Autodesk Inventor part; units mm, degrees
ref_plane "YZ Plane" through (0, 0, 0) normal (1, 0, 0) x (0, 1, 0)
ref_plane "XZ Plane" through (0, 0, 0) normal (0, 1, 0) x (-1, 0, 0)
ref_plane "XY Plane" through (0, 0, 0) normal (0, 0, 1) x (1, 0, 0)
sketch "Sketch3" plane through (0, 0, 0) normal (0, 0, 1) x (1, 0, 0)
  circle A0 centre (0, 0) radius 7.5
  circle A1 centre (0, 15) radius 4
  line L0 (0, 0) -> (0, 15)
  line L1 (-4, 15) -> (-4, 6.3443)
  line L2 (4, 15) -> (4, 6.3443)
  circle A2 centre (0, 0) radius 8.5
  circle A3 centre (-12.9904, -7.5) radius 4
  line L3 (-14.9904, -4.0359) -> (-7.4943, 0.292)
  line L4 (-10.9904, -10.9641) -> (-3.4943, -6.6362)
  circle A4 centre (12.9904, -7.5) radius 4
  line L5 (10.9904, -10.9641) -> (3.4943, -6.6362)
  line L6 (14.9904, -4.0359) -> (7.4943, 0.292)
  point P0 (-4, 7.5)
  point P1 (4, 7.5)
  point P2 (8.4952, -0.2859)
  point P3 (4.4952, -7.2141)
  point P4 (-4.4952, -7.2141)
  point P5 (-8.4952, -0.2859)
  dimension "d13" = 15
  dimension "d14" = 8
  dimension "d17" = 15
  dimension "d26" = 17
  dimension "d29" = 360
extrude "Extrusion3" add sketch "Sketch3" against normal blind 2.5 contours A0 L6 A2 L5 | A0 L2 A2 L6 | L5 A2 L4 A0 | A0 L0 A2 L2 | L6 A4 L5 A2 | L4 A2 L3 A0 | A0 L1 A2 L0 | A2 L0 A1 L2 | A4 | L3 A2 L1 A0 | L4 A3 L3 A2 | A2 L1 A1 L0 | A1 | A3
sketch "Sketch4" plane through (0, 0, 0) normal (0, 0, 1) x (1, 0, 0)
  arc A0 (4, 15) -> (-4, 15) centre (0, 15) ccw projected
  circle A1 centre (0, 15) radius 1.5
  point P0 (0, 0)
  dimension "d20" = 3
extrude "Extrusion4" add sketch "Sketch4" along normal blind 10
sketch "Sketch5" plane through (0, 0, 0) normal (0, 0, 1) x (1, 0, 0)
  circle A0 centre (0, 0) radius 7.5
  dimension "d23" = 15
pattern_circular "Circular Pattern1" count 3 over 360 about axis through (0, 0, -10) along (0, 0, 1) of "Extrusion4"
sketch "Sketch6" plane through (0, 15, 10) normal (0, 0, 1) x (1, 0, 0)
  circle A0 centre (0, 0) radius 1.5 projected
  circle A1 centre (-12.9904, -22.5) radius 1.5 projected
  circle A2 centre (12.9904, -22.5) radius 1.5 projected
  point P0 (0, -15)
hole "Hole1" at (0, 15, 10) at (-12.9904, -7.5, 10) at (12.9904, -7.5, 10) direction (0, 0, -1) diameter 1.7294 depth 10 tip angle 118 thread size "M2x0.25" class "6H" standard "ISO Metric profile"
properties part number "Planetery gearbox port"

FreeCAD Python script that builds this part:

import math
import FreeCAD as App
import Part
import Sketcher
Q = App.Units.Quantity

doc = App.newDocument("Part")
body = doc.addObject("PartDesign::Body", "Body")

# Sketch on XY plane
sketch1 = body.newObject("Sketcher::SketchObject", "Sketch")
sketch1.AttachmentSupport = (doc.getObject("XY_Plane"), [""])
sketch1.MapMode = "FlatFace"
sketch1.addGeometry(Part.LineSegment(App.Vector(4, 7.5, 0), App.Vector(4, 15, 0)), False)
sketch1.addGeometry(Part.ArcOfCircle(Part.Circle(App.Vector(0, 15, 0), App.Vector(0, 0, 1), 4), math.radians(0), math.radians(180)), False)
sketch1.addGeometry(Part.LineSegment(App.Vector(-4, 15, 0), App.Vector(-4, 7.5, 0)), False)
sketch1.addGeometry(Part.ArcOfCircle(Part.Circle(App.Vector(0, 0, 0), App.Vector(0, 0, 1), 8.5), math.radians(118), math.radians(182)), False)
sketch1.addGeometry(Part.LineSegment(App.Vector(-8.5, -0.3, 0), App.Vector(-15, -4, 0)), False)
sketch1.addGeometry(Part.ArcOfCircle(Part.Circle(App.Vector(-13, -7.5, 0), App.Vector(0, 0, 1), 4), math.radians(120), math.radians(300)), False)
sketch1.addGeometry(Part.LineSegment(App.Vector(-11, -11, 0), App.Vector(-4.5, -7.2, 0)), False)
sketch1.addGeometry(Part.ArcOfCircle(Part.Circle(App.Vector(0, 0, 0), App.Vector(0, 0, 1), 8.5), math.radians(-122), math.radians(-58)), False)
sketch1.addGeometry(Part.LineSegment(App.Vector(4.5, -7.2, 0), App.Vector(11, -11, 0)), False)
sketch1.addGeometry(Part.ArcOfCircle(Part.Circle(App.Vector(13, -7.5, 0), App.Vector(0, 0, 1), 4), math.radians(-120), math.radians(60)), False)
sketch1.addGeometry(Part.LineSegment(App.Vector(15, -4, 0), App.Vector(8.5, -0.3, 0)), False)
sketch1.addGeometry(Part.ArcOfCircle(Part.Circle(App.Vector(0, 0, 0), App.Vector(0, 0, 1), 8.5), math.radians(-2), math.radians(62)), False)
sketch1.addGeometry(Part.Circle(App.Vector(0, 0, 0), App.Vector(0, 0, 1), 7.5), False)
sketch1.addConstraint(Sketcher.Constraint("Tangent", 0, 2, 1, 1))
sketch1.addConstraint(Sketcher.Constraint("Tangent", 1, 2, 2, 1))
sketch1.addConstraint(Sketcher.Constraint("Coincident", 2, 2, 3, 1))
sketch1.addConstraint(Sketcher.Constraint("Coincident", 3, 2, 4, 1))
sketch1.addConstraint(Sketcher.Constraint("Tangent", 4, 2, 5, 1))
sketch1.addConstraint(Sketcher.Constraint("Tangent", 5, 2, 6, 1))
sketch1.addConstraint(Sketcher.Constraint("Coincident", 6, 2, 7, 1))
sketch1.addConstraint(Sketcher.Constraint("Coincident", 7, 2, 8, 1))
sketch1.addConstraint(Sketcher.Constraint("Tangent", 8, 2, 9, 1))
sketch1.addConstraint(Sketcher.Constraint("Tangent", 9, 2, 10, 1))
sketch1.addConstraint(Sketcher.Constraint("Coincident", 10, 2, 11, 1))
sketch1.addConstraint(Sketcher.Constraint("Coincident", 11, 2, 0, 1))
sketch1.addConstraint(Sketcher.Constraint("Vertical", 0))
sketch1.addConstraint(Sketcher.Constraint("Vertical", 2))
sketch1.addConstraint(Sketcher.Constraint("Coincident", 3, 3, -1, 1))
sketch1.addConstraint(Sketcher.Constraint("Coincident", 7, 3, -1, 1))
sketch1.addConstraint(Sketcher.Constraint("Coincident", 11, 3, -1, 1))
sketch1.addConstraint(Sketcher.Constraint("Coincident", 12, 3, -1, 1))
sketch1.addConstraint(Sketcher.Constraint("Equal", 1, 5))
sketch1.addConstraint(Sketcher.Constraint("Equal", 3, 7))
sketch1.addConstraint(Sketcher.Constraint("Equal", 5, 9))
sketch1.addConstraint(Sketcher.Constraint("Equal", 7, 11))
sketch1.addConstraint(Sketcher.Constraint("Symmetric", 5, 3, 9, 3, -2))
sketch1.addConstraint(Sketcher.Constraint("PointOnObject", 1, 3, -2))
sketch1.addConstraint(Sketcher.Constraint("Parallel", 4, 6))
sketch1.addConstraint(Sketcher.Constraint("Parallel", 8, 10))
sketch1.addConstraint(Sketcher.Constraint("Horizontal", 6, 2, 7, 2))
sketch1.addConstraint(Sketcher.Constraint("Equal", 4, 6))
sketch1.addConstraint(Sketcher.Constraint("Diameter", 12, 15.0))
sketch1.addConstraint(Sketcher.Constraint("Radius", 1, 4.0))
sketch1.addConstraint(Sketcher.Constraint("Radius", 3, 8.5))
sketch1.addConstraint(Sketcher.Constraint("DistanceY", -1, 1, 1, 3, 15.0))
sketch1.addConstraint(Sketcher.Constraint("Angle", 4, Q("-149.9999 deg")))
sketch1.addConstraint(Sketcher.Constraint("Distance", 4, 7.5))
pad1 = body.newObject("PartDesign::Pad", "Pad")
pad1.Profile = sketch1
pad1.Length = 2.5
pad1.Reversed = True

# Sketch on XY plane
sketch2 = body.newObject("Sketcher::SketchObject", "Sketch001")
sketch2.AttachmentSupport = (doc.getObject("XY_Plane"), [""])
sketch2.MapMode = "FlatFace"
sketch2.addGeometry(Part.Circle(App.Vector(0, 15, 0), App.Vector(0, 0, 1), 1.5), False)
sketch2.addConstraint(Sketcher.Constraint("PointOnObject", 0, 3, -2))
sketch2.addConstraint(Sketcher.Constraint("Diameter", 0, 3.0))
sketch2.addConstraint(Sketcher.Constraint("DistanceY", -1, 1, 0, 3, 15.0))
pad2 = body.newObject("PartDesign::Pad", "Pad001")
pad2.Profile = sketch2
pad2.Length = 10
doc.recompute()

polarpattern = body.newObject("PartDesign::PolarPattern", "PolarPattern")
polarpattern.Originals = [pad2]
polarpattern.Axis = (doc.getObject("Z_Axis"), [""])
polarpattern.Angle = 360
polarpattern.Occurrences = 3
body.Tip = polarpattern

# Sketch on XY plane
sketch3 = body.newObject("Sketcher::SketchObject", "Sketch002")
sketch3.AttachmentSupport = (doc.getObject("XY_Plane"), [""])
sketch3.MapMode = "FlatFace"
sketch3.AttachmentOffset = App.Placement(App.Vector(0, 0, 10), App.Rotation())
sketch3.addGeometry(Part.Circle(App.Vector(0, 15, 0), App.Vector(0, 0, 1), 0.9), False)
sketch3.addGeometry(Part.Circle(App.Vector(-13, -7.5, 0), App.Vector(0, 0, 1), 0.9), False)
sketch3.addGeometry(Part.Circle(App.Vector(13, -7.5, 0), App.Vector(0, 0, 1), 0.9), False)
sketch3.addConstraint(Sketcher.Constraint("Equal", 0, 1))
sketch3.addConstraint(Sketcher.Constraint("Equal", 1, 2))
sketch3.addConstraint(Sketcher.Constraint("Symmetric", 1, 3, 2, 3, -2))
sketch3.addConstraint(Sketcher.Constraint("PointOnObject", 0, 3, -2))
sketch3.addConstraint(Sketcher.Constraint("DistanceY", -1, 1, 0, 3, 15.0))
sketch3.addConstraint(Sketcher.Constraint("Diameter", 0, 1.7294))
sketch3.addConstraint(Sketcher.Constraint("DistanceY", 1, 3, -1, 1, 7.5))
sketch3.addConstraint(Sketcher.Constraint("DistanceX", 1, 3, -1, 1, 12.9904))
doc.recompute()
hole = body.newObject("PartDesign::Hole", "Hole")
hole.Profile = sketch3
hole.ThreadType = "None"
hole.Diameter = 1.7294
hole.DepthType = "Dimension"
hole.Depth = 10
hole.DrillPoint = "Angled"
hole.DrillPointAngle = 118

doc.recompute()
